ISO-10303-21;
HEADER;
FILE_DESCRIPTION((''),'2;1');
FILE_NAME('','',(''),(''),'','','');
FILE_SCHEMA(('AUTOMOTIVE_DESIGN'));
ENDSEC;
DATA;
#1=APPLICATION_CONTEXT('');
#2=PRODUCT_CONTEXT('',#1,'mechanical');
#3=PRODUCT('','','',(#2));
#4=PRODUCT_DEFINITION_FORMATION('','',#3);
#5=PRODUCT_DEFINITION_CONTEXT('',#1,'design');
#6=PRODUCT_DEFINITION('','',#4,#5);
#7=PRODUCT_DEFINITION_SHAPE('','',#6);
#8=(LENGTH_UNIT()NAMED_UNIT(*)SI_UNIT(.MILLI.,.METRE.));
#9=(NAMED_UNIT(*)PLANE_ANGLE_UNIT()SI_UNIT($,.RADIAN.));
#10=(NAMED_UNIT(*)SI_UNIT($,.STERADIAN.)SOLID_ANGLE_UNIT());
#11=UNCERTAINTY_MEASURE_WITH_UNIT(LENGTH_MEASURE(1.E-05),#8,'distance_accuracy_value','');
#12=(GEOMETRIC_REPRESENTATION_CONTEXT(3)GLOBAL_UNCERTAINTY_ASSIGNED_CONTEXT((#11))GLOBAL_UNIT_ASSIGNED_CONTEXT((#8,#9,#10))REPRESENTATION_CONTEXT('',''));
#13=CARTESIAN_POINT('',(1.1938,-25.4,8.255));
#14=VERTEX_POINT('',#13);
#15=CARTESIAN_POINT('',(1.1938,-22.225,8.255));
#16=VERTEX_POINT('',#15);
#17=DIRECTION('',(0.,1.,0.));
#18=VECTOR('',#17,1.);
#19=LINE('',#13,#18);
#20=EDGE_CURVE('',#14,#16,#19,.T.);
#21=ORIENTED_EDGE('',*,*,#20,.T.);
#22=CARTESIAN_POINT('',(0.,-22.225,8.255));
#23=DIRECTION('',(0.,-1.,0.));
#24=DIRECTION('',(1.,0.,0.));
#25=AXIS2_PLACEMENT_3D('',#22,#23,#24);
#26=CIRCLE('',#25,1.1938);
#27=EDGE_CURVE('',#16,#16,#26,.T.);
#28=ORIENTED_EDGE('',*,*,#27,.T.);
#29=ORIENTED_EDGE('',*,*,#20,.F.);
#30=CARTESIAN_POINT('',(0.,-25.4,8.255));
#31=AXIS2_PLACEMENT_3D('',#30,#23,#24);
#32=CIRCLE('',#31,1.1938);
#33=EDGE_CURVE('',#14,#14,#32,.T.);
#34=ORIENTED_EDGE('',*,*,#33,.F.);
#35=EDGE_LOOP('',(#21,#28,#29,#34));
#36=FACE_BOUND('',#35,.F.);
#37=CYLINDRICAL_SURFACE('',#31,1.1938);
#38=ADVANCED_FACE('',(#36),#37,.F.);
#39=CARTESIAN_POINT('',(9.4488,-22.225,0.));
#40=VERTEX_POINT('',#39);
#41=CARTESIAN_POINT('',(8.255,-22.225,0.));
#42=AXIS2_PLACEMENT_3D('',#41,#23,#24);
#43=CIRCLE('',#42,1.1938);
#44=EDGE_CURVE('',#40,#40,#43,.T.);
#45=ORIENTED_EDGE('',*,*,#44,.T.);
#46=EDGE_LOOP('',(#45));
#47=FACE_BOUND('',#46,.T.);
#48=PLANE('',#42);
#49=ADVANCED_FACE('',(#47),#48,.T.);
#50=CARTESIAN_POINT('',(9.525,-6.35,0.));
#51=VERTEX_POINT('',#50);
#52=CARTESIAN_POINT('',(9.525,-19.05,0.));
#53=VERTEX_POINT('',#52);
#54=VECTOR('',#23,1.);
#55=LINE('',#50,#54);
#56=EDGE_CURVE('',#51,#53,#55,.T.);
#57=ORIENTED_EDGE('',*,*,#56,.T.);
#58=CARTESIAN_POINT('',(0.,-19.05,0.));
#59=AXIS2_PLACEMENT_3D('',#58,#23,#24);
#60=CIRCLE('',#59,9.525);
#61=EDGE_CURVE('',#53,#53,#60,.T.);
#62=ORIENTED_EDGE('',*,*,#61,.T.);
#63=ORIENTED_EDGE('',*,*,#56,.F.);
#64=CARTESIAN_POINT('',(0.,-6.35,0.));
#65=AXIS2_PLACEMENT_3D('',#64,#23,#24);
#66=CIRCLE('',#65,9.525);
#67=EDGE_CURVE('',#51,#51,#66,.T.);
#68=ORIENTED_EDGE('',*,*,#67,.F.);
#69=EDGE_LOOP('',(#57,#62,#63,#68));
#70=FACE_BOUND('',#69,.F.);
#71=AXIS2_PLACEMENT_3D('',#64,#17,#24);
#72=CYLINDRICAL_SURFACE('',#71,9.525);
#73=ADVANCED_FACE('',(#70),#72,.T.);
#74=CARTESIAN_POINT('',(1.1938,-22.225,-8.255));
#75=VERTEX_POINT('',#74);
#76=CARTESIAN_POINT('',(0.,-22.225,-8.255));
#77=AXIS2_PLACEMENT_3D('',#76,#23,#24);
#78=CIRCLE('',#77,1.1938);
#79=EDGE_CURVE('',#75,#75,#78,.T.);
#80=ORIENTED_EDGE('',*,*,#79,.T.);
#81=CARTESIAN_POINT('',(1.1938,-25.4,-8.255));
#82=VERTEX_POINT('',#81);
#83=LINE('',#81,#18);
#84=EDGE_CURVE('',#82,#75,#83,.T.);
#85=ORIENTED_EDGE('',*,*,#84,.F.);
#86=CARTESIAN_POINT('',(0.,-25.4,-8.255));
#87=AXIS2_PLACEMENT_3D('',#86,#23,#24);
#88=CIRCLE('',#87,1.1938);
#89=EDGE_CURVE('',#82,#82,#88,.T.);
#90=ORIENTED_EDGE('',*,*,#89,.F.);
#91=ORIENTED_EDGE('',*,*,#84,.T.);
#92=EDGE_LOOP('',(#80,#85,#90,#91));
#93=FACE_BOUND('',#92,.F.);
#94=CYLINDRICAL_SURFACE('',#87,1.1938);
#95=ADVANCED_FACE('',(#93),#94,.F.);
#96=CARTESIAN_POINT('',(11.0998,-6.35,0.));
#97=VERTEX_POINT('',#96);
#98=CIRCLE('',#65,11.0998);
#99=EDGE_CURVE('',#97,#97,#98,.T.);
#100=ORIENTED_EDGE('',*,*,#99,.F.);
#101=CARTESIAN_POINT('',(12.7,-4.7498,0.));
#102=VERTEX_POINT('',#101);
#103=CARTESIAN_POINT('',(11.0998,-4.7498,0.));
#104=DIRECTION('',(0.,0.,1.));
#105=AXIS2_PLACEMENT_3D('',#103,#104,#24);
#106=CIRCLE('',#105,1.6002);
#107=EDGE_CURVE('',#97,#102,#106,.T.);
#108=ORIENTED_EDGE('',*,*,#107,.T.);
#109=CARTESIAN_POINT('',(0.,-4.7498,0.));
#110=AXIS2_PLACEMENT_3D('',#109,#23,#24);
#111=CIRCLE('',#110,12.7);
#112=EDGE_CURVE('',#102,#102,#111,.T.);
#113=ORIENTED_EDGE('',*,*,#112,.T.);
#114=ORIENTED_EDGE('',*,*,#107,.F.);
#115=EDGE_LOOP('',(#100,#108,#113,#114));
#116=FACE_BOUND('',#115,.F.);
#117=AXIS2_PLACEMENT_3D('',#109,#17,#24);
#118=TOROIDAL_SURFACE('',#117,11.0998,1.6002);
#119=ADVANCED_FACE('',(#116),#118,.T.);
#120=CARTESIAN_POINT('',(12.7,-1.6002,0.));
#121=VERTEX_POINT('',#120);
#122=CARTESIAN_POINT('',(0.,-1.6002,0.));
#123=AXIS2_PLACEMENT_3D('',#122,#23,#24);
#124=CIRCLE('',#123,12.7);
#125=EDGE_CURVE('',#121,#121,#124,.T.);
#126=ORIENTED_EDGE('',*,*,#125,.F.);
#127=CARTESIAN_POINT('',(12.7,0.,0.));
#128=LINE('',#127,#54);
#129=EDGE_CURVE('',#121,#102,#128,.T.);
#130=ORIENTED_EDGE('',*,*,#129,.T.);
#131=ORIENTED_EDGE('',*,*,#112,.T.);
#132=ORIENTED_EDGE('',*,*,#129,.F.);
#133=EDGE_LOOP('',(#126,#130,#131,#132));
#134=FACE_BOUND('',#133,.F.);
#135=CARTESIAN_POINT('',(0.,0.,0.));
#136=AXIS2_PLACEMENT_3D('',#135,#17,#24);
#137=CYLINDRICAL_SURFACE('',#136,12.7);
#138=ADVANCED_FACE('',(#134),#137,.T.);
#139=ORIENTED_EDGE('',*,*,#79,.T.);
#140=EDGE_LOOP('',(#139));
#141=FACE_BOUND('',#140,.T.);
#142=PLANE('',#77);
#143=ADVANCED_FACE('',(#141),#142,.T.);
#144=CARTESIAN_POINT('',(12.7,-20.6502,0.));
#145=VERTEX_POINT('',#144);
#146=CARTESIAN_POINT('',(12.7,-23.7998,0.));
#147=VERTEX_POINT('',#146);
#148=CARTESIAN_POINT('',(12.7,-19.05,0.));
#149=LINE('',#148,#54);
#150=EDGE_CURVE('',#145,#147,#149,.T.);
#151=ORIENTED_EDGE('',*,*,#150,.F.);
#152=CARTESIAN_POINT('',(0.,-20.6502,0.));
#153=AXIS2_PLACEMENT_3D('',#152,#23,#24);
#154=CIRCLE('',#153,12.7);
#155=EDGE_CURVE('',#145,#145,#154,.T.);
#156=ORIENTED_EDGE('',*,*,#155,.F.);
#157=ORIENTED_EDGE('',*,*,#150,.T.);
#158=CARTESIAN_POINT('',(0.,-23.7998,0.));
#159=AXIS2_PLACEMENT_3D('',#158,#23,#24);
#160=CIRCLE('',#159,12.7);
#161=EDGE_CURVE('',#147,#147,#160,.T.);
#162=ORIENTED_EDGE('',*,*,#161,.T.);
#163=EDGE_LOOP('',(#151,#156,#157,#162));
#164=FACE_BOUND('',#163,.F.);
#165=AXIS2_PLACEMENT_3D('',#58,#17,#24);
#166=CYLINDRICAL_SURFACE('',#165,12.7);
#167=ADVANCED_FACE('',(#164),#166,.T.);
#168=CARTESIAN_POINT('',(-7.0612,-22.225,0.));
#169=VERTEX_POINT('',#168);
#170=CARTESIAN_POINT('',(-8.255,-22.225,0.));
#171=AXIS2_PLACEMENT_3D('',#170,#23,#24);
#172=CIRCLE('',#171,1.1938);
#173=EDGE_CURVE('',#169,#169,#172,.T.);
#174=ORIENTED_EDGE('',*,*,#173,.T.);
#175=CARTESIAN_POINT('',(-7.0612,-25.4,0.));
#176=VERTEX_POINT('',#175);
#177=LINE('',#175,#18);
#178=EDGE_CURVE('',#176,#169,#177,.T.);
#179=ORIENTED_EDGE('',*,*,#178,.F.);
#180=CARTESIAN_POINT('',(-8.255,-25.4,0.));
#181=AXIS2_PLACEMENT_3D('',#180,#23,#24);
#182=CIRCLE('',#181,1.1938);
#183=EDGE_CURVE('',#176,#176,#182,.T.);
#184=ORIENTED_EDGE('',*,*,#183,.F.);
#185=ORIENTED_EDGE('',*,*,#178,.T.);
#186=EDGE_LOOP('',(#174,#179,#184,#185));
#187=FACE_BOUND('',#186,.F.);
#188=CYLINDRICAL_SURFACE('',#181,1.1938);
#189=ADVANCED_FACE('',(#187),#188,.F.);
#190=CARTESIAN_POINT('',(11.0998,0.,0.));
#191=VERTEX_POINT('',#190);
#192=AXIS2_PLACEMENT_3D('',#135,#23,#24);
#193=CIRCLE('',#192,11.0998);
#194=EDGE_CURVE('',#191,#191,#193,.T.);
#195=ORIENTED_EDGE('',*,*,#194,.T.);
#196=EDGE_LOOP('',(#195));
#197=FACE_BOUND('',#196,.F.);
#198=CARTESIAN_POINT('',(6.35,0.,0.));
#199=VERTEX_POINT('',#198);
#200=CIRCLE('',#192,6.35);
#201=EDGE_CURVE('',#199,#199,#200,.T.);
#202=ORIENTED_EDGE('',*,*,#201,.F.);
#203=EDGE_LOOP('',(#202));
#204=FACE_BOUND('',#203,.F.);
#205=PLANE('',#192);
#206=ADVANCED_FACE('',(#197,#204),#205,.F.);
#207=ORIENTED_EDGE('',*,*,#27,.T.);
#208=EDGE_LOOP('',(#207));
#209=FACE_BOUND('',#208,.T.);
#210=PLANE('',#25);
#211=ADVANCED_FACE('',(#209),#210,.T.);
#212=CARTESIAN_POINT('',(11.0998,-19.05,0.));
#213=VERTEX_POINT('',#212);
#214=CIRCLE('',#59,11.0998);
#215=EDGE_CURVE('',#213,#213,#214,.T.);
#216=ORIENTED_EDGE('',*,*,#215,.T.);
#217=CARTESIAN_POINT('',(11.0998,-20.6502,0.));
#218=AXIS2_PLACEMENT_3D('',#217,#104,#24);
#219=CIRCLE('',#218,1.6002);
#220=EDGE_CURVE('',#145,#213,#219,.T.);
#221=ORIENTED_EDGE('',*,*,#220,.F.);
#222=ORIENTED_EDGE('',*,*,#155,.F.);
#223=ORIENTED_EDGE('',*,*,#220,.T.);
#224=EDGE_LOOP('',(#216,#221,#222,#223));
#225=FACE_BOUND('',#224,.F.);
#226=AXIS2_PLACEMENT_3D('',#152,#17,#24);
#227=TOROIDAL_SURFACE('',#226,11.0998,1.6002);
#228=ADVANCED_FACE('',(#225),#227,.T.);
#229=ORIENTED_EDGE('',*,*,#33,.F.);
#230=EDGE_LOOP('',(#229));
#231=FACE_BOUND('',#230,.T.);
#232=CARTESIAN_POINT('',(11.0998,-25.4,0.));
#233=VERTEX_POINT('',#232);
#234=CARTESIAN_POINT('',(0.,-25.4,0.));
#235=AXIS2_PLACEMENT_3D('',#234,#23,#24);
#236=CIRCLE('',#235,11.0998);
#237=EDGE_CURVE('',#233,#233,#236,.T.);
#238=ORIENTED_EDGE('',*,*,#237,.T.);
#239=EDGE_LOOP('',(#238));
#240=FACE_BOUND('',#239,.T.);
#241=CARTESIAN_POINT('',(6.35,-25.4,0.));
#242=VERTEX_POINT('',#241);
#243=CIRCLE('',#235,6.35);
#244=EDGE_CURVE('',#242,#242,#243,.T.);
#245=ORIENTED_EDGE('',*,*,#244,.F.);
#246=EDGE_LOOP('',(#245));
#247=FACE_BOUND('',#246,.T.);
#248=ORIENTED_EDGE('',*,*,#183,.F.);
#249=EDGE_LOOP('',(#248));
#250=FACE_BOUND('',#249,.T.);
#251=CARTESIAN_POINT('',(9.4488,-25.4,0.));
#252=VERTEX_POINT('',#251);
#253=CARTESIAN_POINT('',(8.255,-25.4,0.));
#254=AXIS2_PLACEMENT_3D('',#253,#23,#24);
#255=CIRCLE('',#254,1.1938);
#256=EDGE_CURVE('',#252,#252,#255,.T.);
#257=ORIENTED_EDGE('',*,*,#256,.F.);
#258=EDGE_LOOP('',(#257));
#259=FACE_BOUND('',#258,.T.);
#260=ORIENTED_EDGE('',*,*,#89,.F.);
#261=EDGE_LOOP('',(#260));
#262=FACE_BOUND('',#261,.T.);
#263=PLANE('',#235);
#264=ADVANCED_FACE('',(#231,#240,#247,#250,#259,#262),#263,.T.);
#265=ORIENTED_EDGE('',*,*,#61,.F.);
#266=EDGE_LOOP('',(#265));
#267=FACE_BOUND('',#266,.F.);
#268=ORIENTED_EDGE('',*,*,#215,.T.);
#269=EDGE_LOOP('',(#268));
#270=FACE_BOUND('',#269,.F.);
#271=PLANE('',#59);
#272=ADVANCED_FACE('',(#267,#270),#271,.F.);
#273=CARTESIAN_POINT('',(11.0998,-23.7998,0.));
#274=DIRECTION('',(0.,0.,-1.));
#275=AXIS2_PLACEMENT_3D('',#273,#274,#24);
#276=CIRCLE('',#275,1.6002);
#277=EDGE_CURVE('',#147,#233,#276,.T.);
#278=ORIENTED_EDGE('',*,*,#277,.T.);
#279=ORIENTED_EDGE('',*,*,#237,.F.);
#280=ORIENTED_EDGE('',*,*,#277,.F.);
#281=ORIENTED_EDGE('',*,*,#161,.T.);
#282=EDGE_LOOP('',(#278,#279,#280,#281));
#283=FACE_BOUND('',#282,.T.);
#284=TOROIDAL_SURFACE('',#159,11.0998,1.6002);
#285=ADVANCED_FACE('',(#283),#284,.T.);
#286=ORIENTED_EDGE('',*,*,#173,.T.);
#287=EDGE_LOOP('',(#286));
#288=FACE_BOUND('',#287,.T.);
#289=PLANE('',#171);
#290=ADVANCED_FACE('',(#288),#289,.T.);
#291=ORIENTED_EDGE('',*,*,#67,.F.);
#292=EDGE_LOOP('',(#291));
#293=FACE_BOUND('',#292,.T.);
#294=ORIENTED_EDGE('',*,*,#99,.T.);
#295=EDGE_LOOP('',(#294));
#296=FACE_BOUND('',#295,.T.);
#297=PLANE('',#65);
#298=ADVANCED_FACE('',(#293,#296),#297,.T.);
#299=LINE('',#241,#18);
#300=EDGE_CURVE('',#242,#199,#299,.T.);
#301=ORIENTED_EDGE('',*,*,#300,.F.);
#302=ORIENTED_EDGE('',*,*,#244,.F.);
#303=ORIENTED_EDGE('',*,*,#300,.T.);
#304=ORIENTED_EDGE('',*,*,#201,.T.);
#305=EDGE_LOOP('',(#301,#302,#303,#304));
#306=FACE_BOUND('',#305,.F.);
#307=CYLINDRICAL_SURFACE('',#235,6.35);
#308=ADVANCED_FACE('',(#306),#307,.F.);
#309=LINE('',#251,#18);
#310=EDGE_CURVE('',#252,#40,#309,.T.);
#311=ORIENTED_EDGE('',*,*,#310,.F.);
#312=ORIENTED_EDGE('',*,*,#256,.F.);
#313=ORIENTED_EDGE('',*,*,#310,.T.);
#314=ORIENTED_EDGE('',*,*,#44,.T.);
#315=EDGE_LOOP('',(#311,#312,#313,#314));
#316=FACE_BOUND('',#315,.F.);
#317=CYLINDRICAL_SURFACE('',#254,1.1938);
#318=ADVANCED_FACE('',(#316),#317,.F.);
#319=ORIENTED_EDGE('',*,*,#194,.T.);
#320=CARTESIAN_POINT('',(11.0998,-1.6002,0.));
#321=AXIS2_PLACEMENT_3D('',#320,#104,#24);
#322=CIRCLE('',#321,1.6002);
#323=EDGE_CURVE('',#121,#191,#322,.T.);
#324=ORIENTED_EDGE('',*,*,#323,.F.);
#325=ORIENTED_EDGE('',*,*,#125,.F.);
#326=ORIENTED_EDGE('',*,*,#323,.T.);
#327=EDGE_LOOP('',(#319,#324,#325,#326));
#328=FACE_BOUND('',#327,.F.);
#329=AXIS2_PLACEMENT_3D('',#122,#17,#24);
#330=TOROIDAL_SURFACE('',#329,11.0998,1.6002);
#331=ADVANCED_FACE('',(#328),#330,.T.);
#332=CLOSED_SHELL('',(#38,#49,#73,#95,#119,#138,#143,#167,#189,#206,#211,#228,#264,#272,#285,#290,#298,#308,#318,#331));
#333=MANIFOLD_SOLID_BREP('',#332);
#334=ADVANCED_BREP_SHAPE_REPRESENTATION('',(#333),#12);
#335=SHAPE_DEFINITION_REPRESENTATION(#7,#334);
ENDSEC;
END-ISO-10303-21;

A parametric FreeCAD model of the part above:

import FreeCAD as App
import Part
import Sketcher
from FreeCAD import Vector
Q = App.Units.Quantity


def edges_at(feature, points):
    """Names of the edges that pass closest to the given points."""
    edges = feature.Shape.Edges
    near = lambda p: min(range(len(edges)), key=lambda i: edges[i].distToShape(Part.Vertex(*p))[0])
    return sorted({f"Edge{near(p) + 1}" for p in points})

doc = App.newDocument("Part")
body = doc.addObject("PartDesign::Body", "Body")

sketch1 = body.newObject("Sketcher::SketchObject", "Sketch")
sketch1.AttachmentSupport = (doc.getObject("XZ_Plane"), [""])
sketch1.MapMode = "FlatFace"
sketch1.addGeometry(Part.Circle(Vector(0, 0, 0), Vector(0, 0, 1), 13), False)
sketch1.addConstraint([
    Sketcher.Constraint("Coincident", 0, 3, -1, 1),
    Sketcher.Constraint("Diameter", 0, Q("1 in")),
])
pad1 = body.newObject("PartDesign::Pad", "Pad")
pad1.Profile = sketch1
pad1.Length = Q("0.25 in")

sketch2 = body.newObject("Sketcher::SketchObject", "Sketch001")
sketch2.AttachmentSupport = (doc.getObject("XZ_Plane"), [""])
sketch2.MapMode = "FlatFace"
sketch2.AttachmentOffset = App.Placement(Vector(0, 0, 0.25 * 25.4), App.Rotation())
sketch2.addGeometry(Part.Circle(Vector(0, 0, 0), Vector(0, 0, 1), 10), False)
sketch2.addConstraint([
    Sketcher.Constraint("Coincident", 0, 3, -1, 1),
    Sketcher.Constraint("Diameter", 0, Q("0.75 in")),
])
pad2 = body.newObject("PartDesign::Pad", "Pad001")
pad2.Profile = sketch2
pad2.Length = Q("0.5 in")

sketch3 = body.newObject("Sketcher::SketchObject", "Sketch002")
sketch3.AttachmentSupport = (doc.getObject("XZ_Plane"), [""])
sketch3.MapMode = "FlatFace"
sketch3.AttachmentOffset = App.Placement(Vector(0, 0, 0.75 * 25.4), App.Rotation())
sketch3.addGeometry(Part.Circle(Vector(0, 0, 0), Vector(0, 0, 1), 13), False)
sketch3.addConstraint([
    Sketcher.Constraint("Coincident", 0, 3, -1, 1),
    Sketcher.Constraint("Diameter", 0, Q("1 in")),
])
pad3 = body.newObject("PartDesign::Pad", "Pad002")
pad3.Profile = sketch3
pad3.Length = Q("0.25 in")
doc.recompute()

fillet = body.newObject("PartDesign::Fillet", "Fillet")
fillet.Base = (pad3, edges_at(pad3, [
    (-12.7, -25.4, 0),
    (-12.7, -19.05, 0),
    (-12.7, -6.35, 0),
    (-12.7, 0, 0),
]))
fillet.Radius = Q("0.063 in")

sketch4 = body.newObject("Sketcher::SketchObject", "Sketch003")
sketch4.AttachmentSupport = (doc.getObject("XZ_Plane"), [""])
sketch4.MapMode = "FlatFace"
sketch4.AttachmentOffset = App.Placement(Vector(0, 0, 1 * 25.4), App.Rotation())
sketch4.addGeometry([
    Part.Circle(Vector(-8.3, 0, 0), Vector(0, 0, 1), 1.2),
    Part.Circle(Vector(0, -8.3, 0), Vector(0, 0, 1), 1.2),
    Part.Circle(Vector(8.3, 0, 0), Vector(0, 0, 1), 1.2),
    Part.Circle(Vector(0, 8.3, 0), Vector(0, 0, 1), 1.2),
], False)
sketch4.addConstraint([
    Sketcher.Constraint("Equal", 0, 1),
    Sketcher.Constraint("Equal", 1, 2),
    Sketcher.Constraint("Equal", 2, 3),
    Sketcher.Constraint("Symmetric", 0, 3, 2, 3, -1, 1),
    Sketcher.Constraint("Symmetric", 1, 3, 3, 3, -1, 1),
    Sketcher.Constraint("PointOnObject", 0, 3, -1),
    Sketcher.Constraint("PointOnObject", 1, 3, -2),
    Sketcher.Constraint("Diameter", 0, Q("0.094 in")),
    Sketcher.Constraint("DistanceX", 0, 3, 2, 3, Q("0.65 in")),
    Sketcher.Constraint("DistanceY", 1, 3, 3, 3, Q("0.65 in")),
])
pocket1 = body.newObject("PartDesign::Pocket", "Pocket")
pocket1.Profile = sketch4
pocket1.Length = Q("0.125 in")

sketch5 = body.newObject("Sketcher::SketchObject", "Sketch004")
sketch5.AttachmentSupport = (doc.getObject("XZ_Plane"), [""])
sketch5.MapMode = "FlatFace"
sketch5.AttachmentOffset = App.Placement(Vector(0, 0, 1 * 25.4), App.Rotation())
sketch5.addGeometry(Part.Circle(Vector(0, 0, 0), Vector(0, 0, 1), 6), False)
sketch5.addConstraint([
    Sketcher.Constraint("Coincident", 0, 3, -1, 1),
    Sketcher.Constraint("Diameter", 0, Q("0.5 in")),
])
pocket2 = body.newObject("PartDesign::Pocket", "Pocket001")
pocket2.Profile = sketch5
pocket2.Type = "ThroughAll"

doc.recompute()
